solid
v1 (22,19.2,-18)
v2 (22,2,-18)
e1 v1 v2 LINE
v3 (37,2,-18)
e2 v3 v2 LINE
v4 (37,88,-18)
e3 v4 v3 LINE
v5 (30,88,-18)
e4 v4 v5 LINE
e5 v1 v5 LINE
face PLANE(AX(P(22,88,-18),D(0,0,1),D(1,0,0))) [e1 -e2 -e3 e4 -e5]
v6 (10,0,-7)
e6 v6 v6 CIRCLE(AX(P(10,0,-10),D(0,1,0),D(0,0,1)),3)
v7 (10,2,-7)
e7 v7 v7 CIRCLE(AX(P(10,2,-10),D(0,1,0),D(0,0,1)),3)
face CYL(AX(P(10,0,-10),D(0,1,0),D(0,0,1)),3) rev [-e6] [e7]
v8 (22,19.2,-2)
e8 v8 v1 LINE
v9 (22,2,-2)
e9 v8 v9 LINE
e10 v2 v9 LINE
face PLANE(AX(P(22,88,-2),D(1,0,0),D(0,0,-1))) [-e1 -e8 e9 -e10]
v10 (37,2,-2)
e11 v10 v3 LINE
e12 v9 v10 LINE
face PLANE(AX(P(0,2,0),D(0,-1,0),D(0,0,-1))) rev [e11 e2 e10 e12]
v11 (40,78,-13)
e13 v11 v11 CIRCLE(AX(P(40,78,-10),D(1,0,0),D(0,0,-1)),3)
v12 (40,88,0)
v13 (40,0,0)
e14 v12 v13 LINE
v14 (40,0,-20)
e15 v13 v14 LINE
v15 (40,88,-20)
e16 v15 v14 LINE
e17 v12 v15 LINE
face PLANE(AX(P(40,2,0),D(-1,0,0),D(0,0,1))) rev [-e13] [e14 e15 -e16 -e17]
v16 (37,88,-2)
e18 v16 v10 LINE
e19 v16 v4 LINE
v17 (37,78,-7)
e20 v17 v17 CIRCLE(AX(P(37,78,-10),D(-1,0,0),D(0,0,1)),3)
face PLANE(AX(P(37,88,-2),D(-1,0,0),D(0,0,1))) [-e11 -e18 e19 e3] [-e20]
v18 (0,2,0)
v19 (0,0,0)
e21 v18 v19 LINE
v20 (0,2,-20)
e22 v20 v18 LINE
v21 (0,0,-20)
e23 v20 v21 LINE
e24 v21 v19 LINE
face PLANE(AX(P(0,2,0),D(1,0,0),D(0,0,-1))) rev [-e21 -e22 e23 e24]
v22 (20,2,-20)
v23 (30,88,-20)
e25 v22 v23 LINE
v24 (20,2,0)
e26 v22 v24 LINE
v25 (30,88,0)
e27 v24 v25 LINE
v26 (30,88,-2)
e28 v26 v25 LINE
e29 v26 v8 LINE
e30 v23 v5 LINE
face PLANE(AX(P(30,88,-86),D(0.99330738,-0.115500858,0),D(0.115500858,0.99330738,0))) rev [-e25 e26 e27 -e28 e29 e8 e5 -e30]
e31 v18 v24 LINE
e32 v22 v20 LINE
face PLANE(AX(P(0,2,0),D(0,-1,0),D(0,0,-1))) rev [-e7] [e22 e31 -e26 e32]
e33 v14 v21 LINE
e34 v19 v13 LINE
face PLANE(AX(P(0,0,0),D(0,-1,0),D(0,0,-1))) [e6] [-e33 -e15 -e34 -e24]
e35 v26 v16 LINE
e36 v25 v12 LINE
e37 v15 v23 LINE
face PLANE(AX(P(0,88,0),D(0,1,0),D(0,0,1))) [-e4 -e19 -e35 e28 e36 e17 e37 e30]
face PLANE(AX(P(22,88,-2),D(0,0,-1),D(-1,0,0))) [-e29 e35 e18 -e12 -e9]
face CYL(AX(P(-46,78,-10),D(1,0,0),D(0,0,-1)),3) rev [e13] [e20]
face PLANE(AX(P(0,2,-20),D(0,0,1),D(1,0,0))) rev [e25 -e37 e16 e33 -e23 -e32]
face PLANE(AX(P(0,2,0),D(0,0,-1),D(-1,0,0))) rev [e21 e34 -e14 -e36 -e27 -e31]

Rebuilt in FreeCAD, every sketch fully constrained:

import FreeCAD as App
import Part
import Sketcher

V = App.Vector
Q = App.Units.Quantity


def add_polygon(sketch, points):
    """Adds a closed chain of lines whose ends are joined by coincident constraints."""
    first, n = sketch.GeometryCount, len(points)
    for a, b in zip(points, points[1:] + points[:1]):
        sketch.addGeometry(Part.LineSegment(App.Vector(*a, 0), App.Vector(*b, 0)), False)
    for i in range(n):
        sketch.addConstraint(Sketcher.Constraint("Coincident", first + i, 2, first + (i + 1) % n, 1))

doc = App.newDocument("Part")
body = doc.addObject("PartDesign::Body", "Body")

# Sketch on XZ plane
sketch1 = body.newObject("Sketcher::SketchObject", "Sketch")
sketch1.AttachmentSupport = (doc.getObject("XZ_Plane"), [""])
sketch1.MapMode = "FlatFace"
add_polygon(sketch1, [(0, -20), (0, 0), (40, 0), (40, -20)])  # lines 0-3
sketch1.addConstraint(Sketcher.Constraint("Vertical", 0))
sketch1.addConstraint(Sketcher.Constraint("Horizontal", 1))
sketch1.addConstraint(Sketcher.Constraint("Vertical", 2))
sketch1.addConstraint(Sketcher.Constraint("Horizontal", 3))
sketch1.addConstraint(Sketcher.Constraint("Coincident", 0, 2, -1, 1))
sketch1.addConstraint(Sketcher.Constraint("DistanceX", 1, 1, 1, 2, Q("40 mm")))
sketch1.addConstraint(Sketcher.Constraint("DistanceY", 0, 1, 0, 2, Q("20 mm")))
pad1 = body.newObject("PartDesign::Pad", "Pad")
pad1.Profile = sketch1
pad1.Length = 2
pad1.Reversed = True

# Sketch on XZ plane
sketch2 = body.newObject("Sketcher::SketchObject", "Sketch001")
sketch2.AttachmentSupport = (doc.getObject("XZ_Plane"), [""])
sketch2.MapMode = "FlatFace"
sketch2.AttachmentOffset = App.Placement(V(0, 0, -2), App.Rotation())
sketch2.addGeometry(Part.Circle(V(10, -10, 0), V(0, 0, 1), 3), False)
sketch2.addConstraint(Sketcher.Constraint("Diameter", 0, Q("6 mm")))
sketch2.addConstraint(Sketcher.Constraint("DistanceX", -1, 1, 0, 3, Q("10 mm")))
sketch2.addConstraint(Sketcher.Constraint("DistanceY", 0, 3, -1, 1, Q("10 mm")))
pocket1 = body.newObject("PartDesign::Pocket", "Pocket")
pocket1.Profile = sketch2
pocket1.Length = 2
pocket1.Reversed = True

# Sketch on XZ plane
sketch3 = body.newObject("Sketcher::SketchObject", "Sketch002")
sketch3.AttachmentSupport = (doc.getObject("XZ_Plane"), [""])
sketch3.MapMode = "FlatFace"
sketch3.AttachmentOffset = App.Placement(V(0, 0, -2), App.Rotation())
add_polygon(sketch3, [(20, -20), (20, 0), (40, 0), (40, -20)])  # lines 0-3
add_polygon(sketch3, [(37, -2), (22, -2), (22, -18), (37, -18)])  # lines 4-7
sketch3.addConstraint(Sketcher.Constraint("Vertical", 0))
sketch3.addConstraint(Sketcher.Constraint("Horizontal", 1))
sketch3.addConstraint(Sketcher.Constraint("Vertical", 2))
sketch3.addConstraint(Sketcher.Constraint("Horizontal", 3))
sketch3.addConstraint(Sketcher.Constraint("Horizontal", 4))
sketch3.addConstraint(Sketcher.Constraint("Vertical", 5))
sketch3.addConstraint(Sketcher.Constraint("Horizontal", 6))
sketch3.addConstraint(Sketcher.Constraint("Vertical", 7))
sketch3.addConstraint(Sketcher.Constraint("PointOnObject", 0, 2, -1))
sketch3.addConstraint(Sketcher.Constraint("Equal", 3, 0))
sketch3.addConstraint(Sketcher.Constraint("DistanceX", 1, 1, 1, 2, Q("20 mm")))
sketch3.addConstraint(Sketcher.Constraint("DistanceX", 4, 2, 4, 1, Q("15 mm")))
sketch3.addConstraint(Sketcher.Constraint("DistanceY", 5, 2, 5, 1, Q("16 mm")))
sketch3.addConstraint(Sketcher.Constraint("DistanceX", -1, 1, 0, 2, Q("20 mm")))
sketch3.addConstraint(Sketcher.Constraint("DistanceX", -1, 1, 4, 2, Q("22 mm")))
sketch3.addConstraint(Sketcher.Constraint("DistanceY", 4, 2, -1, 1, Q("2 mm")))
pad2 = body.newObject("PartDesign::Pad", "Pad001")
pad2.Profile = sketch3
pad2.Length = 86
pad2.Reversed = True

# Sketch on YZ plane
sketch4 = body.newObject("Sketcher::SketchObject", "Sketch003")
sketch4.AttachmentSupport = (doc.getObject("YZ_Plane"), [""])
sketch4.MapMode = "FlatFace"
sketch4.AttachmentOffset = App.Placement(V(0, 0, 40), App.Rotation())
sketch4.addGeometry(Part.Circle(V(78, -10, 0), V(0, 0, 1), 3), False)
sketch4.addConstraint(Sketcher.Constraint("Diameter", 0, Q("6 mm")))
sketch4.addConstraint(Sketcher.Constraint("DistanceX", -1, 1, 0, 3, Q("78 mm")))
sketch4.addConstraint(Sketcher.Constraint("DistanceY", 0, 3, -1, 1, Q("10 mm")))
pocket2 = body.newObject("PartDesign::Pocket", "Pocket001")
pocket2.Profile = sketch4
pocket2.Length = 86

# Sketch on XY plane
sketch5 = body.newObject("Sketcher::SketchObject", "Sketch004")
sketch5.AttachmentSupport = (doc.getObject("XY_Plane"), [""])
sketch5.MapMode = "FlatFace"
add_polygon(sketch5, [(20, 2), (30, 88), (20, 88)])  # lines 0-2
sketch5.addConstraint(Sketcher.Constraint("Horizontal", 1))
sketch5.addConstraint(Sketcher.Constraint("Vertical", 2))
sketch5.addConstraint(Sketcher.Constraint("DistanceX", 1, 2, 1, 1, Q("10 mm")))
sketch5.addConstraint(Sketcher.Constraint("DistanceY", 2, 2, 2, 1, Q("86 mm")))
sketch5.addConstraint(Sketcher.Constraint("DistanceX", -1, 1, 0, 2, Q("30 mm")))
sketch5.addConstraint(Sketcher.Constraint("DistanceY", -1, 1, 0, 2, Q("88 mm")))
pocket3 = body.newObject("PartDesign::Pocket", "Pocket002")
pocket3.Profile = sketch5
pocket3.Length = 86

doc.recompute()
